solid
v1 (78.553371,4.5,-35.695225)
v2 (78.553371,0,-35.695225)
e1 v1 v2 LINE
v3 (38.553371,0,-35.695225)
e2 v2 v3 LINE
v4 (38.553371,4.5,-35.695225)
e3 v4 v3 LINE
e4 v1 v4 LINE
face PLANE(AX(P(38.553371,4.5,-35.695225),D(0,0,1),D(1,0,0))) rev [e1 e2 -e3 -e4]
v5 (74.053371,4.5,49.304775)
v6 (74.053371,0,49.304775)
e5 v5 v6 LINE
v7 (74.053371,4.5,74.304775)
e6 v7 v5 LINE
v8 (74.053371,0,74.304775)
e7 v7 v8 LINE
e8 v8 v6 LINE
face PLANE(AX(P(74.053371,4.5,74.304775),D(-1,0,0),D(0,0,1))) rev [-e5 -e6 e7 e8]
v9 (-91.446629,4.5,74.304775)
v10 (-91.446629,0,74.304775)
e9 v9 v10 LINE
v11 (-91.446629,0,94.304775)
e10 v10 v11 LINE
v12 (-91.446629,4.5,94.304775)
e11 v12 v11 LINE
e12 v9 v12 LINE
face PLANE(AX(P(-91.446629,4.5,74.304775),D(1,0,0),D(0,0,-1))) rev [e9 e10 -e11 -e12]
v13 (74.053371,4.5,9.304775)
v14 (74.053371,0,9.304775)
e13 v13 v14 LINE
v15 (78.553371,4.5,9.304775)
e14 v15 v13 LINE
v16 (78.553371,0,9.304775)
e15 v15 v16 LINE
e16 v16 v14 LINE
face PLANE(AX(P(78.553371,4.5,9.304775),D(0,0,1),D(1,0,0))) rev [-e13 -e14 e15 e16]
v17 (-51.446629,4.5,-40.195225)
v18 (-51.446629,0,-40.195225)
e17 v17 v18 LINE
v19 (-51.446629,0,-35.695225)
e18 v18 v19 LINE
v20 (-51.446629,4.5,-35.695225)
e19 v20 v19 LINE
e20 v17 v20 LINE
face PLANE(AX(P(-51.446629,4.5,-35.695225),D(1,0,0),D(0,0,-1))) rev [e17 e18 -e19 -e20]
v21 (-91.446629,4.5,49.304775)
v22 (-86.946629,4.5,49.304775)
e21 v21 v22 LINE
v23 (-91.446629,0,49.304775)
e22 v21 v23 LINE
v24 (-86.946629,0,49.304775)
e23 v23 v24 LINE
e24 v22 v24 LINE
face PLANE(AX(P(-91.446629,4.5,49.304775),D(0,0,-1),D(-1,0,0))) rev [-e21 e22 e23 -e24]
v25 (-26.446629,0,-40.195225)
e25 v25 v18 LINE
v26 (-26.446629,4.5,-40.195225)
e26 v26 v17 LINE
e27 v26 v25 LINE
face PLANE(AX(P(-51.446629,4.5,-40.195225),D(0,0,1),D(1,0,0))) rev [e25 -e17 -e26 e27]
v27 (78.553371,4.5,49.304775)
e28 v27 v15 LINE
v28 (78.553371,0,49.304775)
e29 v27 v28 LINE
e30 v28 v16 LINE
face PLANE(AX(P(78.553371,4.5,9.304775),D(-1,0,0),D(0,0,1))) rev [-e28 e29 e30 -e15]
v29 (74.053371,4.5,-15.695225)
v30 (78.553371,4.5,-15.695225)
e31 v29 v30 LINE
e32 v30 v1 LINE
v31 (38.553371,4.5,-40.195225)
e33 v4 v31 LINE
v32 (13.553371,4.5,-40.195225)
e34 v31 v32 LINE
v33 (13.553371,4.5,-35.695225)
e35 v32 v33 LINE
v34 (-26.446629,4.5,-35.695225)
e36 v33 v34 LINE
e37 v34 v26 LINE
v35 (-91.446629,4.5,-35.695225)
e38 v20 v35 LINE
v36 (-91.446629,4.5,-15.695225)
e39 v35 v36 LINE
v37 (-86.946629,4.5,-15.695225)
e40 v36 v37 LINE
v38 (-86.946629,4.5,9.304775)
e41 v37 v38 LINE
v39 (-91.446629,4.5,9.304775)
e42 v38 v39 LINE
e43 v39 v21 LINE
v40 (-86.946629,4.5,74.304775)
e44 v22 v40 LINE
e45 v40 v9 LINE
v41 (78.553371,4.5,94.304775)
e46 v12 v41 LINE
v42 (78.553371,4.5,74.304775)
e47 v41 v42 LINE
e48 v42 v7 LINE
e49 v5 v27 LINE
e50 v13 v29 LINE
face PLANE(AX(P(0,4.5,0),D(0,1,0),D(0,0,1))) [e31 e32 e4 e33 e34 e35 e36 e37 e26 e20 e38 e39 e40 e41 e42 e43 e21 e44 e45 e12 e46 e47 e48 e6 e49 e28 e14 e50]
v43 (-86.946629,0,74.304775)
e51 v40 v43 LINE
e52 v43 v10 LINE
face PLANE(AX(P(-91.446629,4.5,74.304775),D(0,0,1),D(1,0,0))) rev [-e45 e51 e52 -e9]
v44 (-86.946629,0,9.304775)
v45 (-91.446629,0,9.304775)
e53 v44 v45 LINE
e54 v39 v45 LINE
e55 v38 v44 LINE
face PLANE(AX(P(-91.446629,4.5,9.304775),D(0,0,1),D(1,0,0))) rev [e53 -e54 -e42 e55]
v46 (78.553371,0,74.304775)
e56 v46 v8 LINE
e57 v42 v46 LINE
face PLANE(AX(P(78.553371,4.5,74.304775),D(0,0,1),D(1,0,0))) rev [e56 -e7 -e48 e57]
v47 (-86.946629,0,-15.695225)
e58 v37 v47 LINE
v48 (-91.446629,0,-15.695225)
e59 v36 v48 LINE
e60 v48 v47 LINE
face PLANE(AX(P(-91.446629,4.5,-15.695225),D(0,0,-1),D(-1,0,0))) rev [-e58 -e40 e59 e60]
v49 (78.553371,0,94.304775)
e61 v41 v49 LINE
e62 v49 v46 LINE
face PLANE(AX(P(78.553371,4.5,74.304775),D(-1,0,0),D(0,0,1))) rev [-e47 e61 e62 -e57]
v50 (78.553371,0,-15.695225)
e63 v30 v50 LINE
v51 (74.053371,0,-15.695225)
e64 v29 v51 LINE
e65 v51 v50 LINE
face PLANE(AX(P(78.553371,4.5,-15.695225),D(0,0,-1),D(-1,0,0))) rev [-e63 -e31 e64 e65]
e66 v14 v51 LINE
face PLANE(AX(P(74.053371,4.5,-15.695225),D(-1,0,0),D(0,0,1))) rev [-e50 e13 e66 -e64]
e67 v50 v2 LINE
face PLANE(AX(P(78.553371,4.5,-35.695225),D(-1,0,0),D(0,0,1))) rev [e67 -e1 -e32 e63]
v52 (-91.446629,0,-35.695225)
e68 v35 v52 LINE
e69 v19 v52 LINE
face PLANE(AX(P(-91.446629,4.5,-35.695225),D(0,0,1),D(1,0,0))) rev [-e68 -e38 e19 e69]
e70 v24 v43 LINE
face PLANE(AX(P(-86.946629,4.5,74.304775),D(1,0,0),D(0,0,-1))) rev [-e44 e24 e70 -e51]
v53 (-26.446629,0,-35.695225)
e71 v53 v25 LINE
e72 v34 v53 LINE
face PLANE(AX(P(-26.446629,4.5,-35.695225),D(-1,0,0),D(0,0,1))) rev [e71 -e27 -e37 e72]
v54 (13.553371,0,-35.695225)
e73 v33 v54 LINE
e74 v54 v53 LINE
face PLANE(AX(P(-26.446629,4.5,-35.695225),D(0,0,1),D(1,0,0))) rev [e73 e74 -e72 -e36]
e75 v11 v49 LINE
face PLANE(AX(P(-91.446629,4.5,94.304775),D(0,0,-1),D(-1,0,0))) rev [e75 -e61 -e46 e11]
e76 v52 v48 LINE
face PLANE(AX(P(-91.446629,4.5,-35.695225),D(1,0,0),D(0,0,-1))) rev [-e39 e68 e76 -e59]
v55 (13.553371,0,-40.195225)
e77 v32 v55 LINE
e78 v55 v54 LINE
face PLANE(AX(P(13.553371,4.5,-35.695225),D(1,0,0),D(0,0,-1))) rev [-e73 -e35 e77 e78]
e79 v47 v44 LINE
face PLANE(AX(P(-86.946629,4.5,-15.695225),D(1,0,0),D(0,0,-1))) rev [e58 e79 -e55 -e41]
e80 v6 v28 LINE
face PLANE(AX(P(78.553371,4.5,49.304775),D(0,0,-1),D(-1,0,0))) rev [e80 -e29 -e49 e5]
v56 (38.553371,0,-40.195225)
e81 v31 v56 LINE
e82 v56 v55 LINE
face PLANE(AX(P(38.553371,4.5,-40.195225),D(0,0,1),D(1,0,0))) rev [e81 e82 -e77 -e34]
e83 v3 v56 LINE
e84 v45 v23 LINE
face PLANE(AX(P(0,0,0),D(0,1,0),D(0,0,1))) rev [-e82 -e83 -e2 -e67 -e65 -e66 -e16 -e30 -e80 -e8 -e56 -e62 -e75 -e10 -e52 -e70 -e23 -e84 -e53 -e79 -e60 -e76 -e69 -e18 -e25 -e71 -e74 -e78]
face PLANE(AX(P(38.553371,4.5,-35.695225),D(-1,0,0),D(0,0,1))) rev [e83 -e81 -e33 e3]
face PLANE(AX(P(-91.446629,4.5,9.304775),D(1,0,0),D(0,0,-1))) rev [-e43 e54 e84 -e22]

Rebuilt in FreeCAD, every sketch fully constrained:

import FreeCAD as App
import Part
import Sketcher

doc = App.newDocument("Part")
body = doc.addObject("PartDesign::Body", "Body")

# Sketch on XZ plane
sketch1 = body.newObject("Sketcher::SketchObject", "Sketch")
sketch1.AttachmentSupport = (doc.getObject("XZ_Plane"), [""])
sketch1.MapMode = "FlatFace"
sketch1.addGeometry(Part.LineSegment(App.Vector(-51.4, -35.7, 0), App.Vector(-91.4, -35.7, 0)), False)
sketch1.addGeometry(Part.LineSegment(App.Vector(-91.4, -35.7, 0), App.Vector(-91.4, -15.7, 0)), False)
sketch1.addGeometry(Part.LineSegment(App.Vector(-91.4, -15.7, 0), App.Vector(-86.9, -15.7, 0)), False)
sketch1.addGeometry(Part.LineSegment(App.Vector(-86.9, -15.7, 0), App.Vector(-86.9, 9.3, 0)), False)
sketch1.addGeometry(Part.LineSegment(App.Vector(-86.9, 9.3, 0), App.Vector(-91.4, 9.3, 0)), False)
sketch1.addGeometry(Part.LineSegment(App.Vector(-91.4, 9.3, 0), App.Vector(-91.4, 49.3, 0)), False)
sketch1.addGeometry(Part.LineSegment(App.Vector(-91.4, 49.3, 0), App.Vector(-86.9, 49.3, 0)), False)
sketch1.addGeometry(Part.LineSegment(App.Vector(-86.9, 49.3, 0), App.Vector(-86.9, 74.3, 0)), False)
sketch1.addGeometry(Part.LineSegment(App.Vector(-86.9, 74.3, 0), App.Vector(-91.4, 74.3, 0)), False)
sketch1.addGeometry(Part.LineSegment(App.Vector(-91.4, 74.3, 0), App.Vector(-91.4, 94.3, 0)), False)
sketch1.addGeometry(Part.LineSegment(App.Vector(-91.4, 94.3, 0), App.Vector(78.6, 94.3, 0)), False)
sketch1.addGeometry(Part.LineSegment(App.Vector(78.6, 94.3, 0), App.Vector(78.6, 74.3, 0)), False)
sketch1.addGeometry(Part.LineSegment(App.Vector(78.6, 74.3, 0), App.Vector(74.1, 74.3, 0)), False)
sketch1.addGeometry(Part.LineSegment(App.Vector(74.1, 74.3, 0), App.Vector(74.1, 49.3, 0)), False)
sketch1.addGeometry(Part.LineSegment(App.Vector(74.1, 49.3, 0), App.Vector(78.6, 49.3, 0)), False)
sketch1.addGeometry(Part.LineSegment(App.Vector(78.6, 49.3, 0), App.Vector(78.6, 9.3, 0)), False)
sketch1.addGeometry(Part.LineSegment(App.Vector(78.6, 9.3, 0), App.Vector(74.1, 9.3, 0)), False)
sketch1.addGeometry(Part.LineSegment(App.Vector(74.1, 9.3, 0), App.Vector(74.1, -15.7, 0)), False)
sketch1.addGeometry(Part.LineSegment(App.Vector(74.1, -15.7, 0), App.Vector(78.6, -15.7, 0)), False)
sketch1.addGeometry(Part.LineSegment(App.Vector(78.6, -15.7, 0), App.Vector(78.6, -35.7, 0)), False)
sketch1.addGeometry(Part.LineSegment(App.Vector(78.6, -35.7, 0), App.Vector(38.6, -35.7, 0)), False)
sketch1.addGeometry(Part.LineSegment(App.Vector(38.6, -35.7, 0), App.Vector(38.6, -40.2, 0)), False)
sketch1.addGeometry(Part.LineSegment(App.Vector(38.6, -40.2, 0), App.Vector(13.6, -40.2, 0)), False)
sketch1.addGeometry(Part.LineSegment(App.Vector(13.6, -40.2, 0), App.Vector(13.6, -35.7, 0)), False)
sketch1.addGeometry(Part.LineSegment(App.Vector(13.6, -35.7, 0), App.Vector(-26.4, -35.7, 0)), False)
sketch1.addGeometry(Part.LineSegment(App.Vector(-26.4, -35.7, 0), App.Vector(-26.4, -40.2, 0)), False)
sketch1.addGeometry(Part.LineSegment(App.Vector(-26.4, -40.2, 0), App.Vector(-51.4, -40.2, 0)), False)
sketch1.addGeometry(Part.LineSegment(App.Vector(-51.4, -40.2, 0), App.Vector(-51.4, -35.7, 0)), False)
sketch1.addConstraint(Sketcher.Constraint("Coincident", 0, 2, 1, 1))
sketch1.addConstraint(Sketcher.Constraint("Coincident", 1, 2, 2, 1))
sketch1.addConstraint(Sketcher.Constraint("Coincident", 2, 2, 3, 1))
sketch1.addConstraint(Sketcher.Constraint("Coincident", 3, 2, 4, 1))
sketch1.addConstraint(Sketcher.Constraint("Coincident", 4, 2, 5, 1))
sketch1.addConstraint(Sketcher.Constraint("Coincident", 5, 2, 6, 1))
sketch1.addConstraint(Sketcher.Constraint("Coincident", 6, 2, 7, 1))
sketch1.addConstraint(Sketcher.Constraint("Coincident", 7, 2, 8, 1))
sketch1.addConstraint(Sketcher.Constraint("Coincident", 8, 2, 9, 1))
sketch1.addConstraint(Sketcher.Constraint("Coincident", 9, 2, 10, 1))
sketch1.addConstraint(Sketcher.Constraint("Coincident", 10, 2, 11, 1))
sketch1.addConstraint(Sketcher.Constraint("Coincident", 11, 2, 12, 1))
sketch1.addConstraint(Sketcher.Constraint("Coincident", 12, 2, 13, 1))
sketch1.addConstraint(Sketcher.Constraint("Coincident", 13, 2, 14, 1))
sketch1.addConstraint(Sketcher.Constraint("Coincident", 14, 2, 15, 1))
sketch1.addConstraint(Sketcher.Constraint("Coincident", 15, 2, 16, 1))
sketch1.addConstraint(Sketcher.Constraint("Coincident", 16, 2, 17, 1))
sketch1.addConstraint(Sketcher.Constraint("Coincident", 17, 2, 18, 1))
sketch1.addConstraint(Sketcher.Constraint("Coincident", 18, 2, 19, 1))
sketch1.addConstraint(Sketcher.Constraint("Coincident", 19, 2, 20, 1))
sketch1.addConstraint(Sketcher.Constraint("Coincident", 20, 2, 21, 1))
sketch1.addConstraint(Sketcher.Constraint("Coincident", 21, 2, 22, 1))
sketch1.addConstraint(Sketcher.Constraint("Coincident", 22, 2, 23, 1))
sketch1.addConstraint(Sketcher.Constraint("Coincident", 23, 2, 24, 1))
sketch1.addConstraint(Sketcher.Constraint("Coincident", 24, 2, 25, 1))
sketch1.addConstraint(Sketcher.Constraint("Coincident", 25, 2, 26, 1))
sketch1.addConstraint(Sketcher.Constraint("Coincident", 26, 2, 27, 1))
sketch1.addConstraint(Sketcher.Constraint("Coincident", 27, 2, 0, 1))
sketch1.addConstraint(Sketcher.Constraint("Horizontal", 0))
sketch1.addConstraint(Sketcher.Constraint("Vertical", 1))
sketch1.addConstraint(Sketcher.Constraint("Horizontal", 2))
sketch1.addConstraint(Sketcher.Constraint("Vertical", 3))
sketch1.addConstraint(Sketcher.Constraint("Horizontal", 4))
sketch1.addConstraint(Sketcher.Constraint("Vertical", 5))
sketch1.addConstraint(Sketcher.Constraint("Horizontal", 6))
sketch1.addConstraint(Sketcher.Constraint("Vertical", 7))
sketch1.addConstraint(Sketcher.Constraint("Horizontal", 8))
sketch1.addConstraint(Sketcher.Constraint("Vertical", 9))
sketch1.addConstraint(Sketcher.Constraint("Horizontal", 10))
sketch1.addConstraint(Sketcher.Constraint("Vertical", 11))
sketch1.addConstraint(Sketcher.Constraint("Horizontal", 12))
sketch1.addConstraint(Sketcher.Constraint("Vertical", 13))
sketch1.addConstraint(Sketcher.Constraint("Horizontal", 14))
sketch1.addConstraint(Sketcher.Constraint("Vertical", 15))
sketch1.addConstraint(Sketcher.Constraint("Horizontal", 16))
sketch1.addConstraint(Sketcher.Constraint("Vertical", 17))
sketch1.addConstraint(Sketcher.Constraint("Horizontal", 18))
sketch1.addConstraint(Sketcher.Constraint("Vertical", 19))
sketch1.addConstraint(Sketcher.Constraint("Horizontal", 20))
sketch1.addConstraint(Sketcher.Constraint("Vertical", 21))
sketch1.addConstraint(Sketcher.Constraint("Horizontal", 22))
sketch1.addConstraint(Sketcher.Constraint("Vertical", 23))
sketch1.addConstraint(Sketcher.Constraint("Horizontal", 24))
sketch1.addConstraint(Sketcher.Constraint("Vertical", 25))
sketch1.addConstraint(Sketcher.Constraint("Horizontal", 26))
sketch1.addConstraint(Sketcher.Constraint("Vertical", 27))
sketch1.addConstraint(Sketcher.Constraint("Horizontal", 8, 2, 11, 2))
sketch1.addConstraint(Sketcher.Constraint("Horizontal", 6, 2, 13, 2))
sketch1.addConstraint(Sketcher.Constraint("Horizontal", 4, 2, 15, 2))
sketch1.addConstraint(Sketcher.Constraint("Horizontal", 2, 2, 17, 2))
sketch1.addConstraint(Sketcher.Constraint("Horizontal", 0, 2, 19, 2))
sketch1.addConstraint(Sketcher.Constraint("Horizontal", 20, 2, 23, 2))
sketch1.addConstraint(Sketcher.Constraint("Horizontal", 22, 2, 25, 2))
sketch1.addConstraint(Sketcher.Constraint("Vertical", 1, 2, 4, 2))
sketch1.addConstraint(Sketcher.Constraint("Vertical", 3, 2, 6, 2))
sketch1.addConstraint(Sketcher.Constraint("Vertical", 5, 2, 8, 2))
sketch1.addConstraint(Sketcher.Constraint("Vertical", 11, 2, 14, 2))
sketch1.addConstraint(Sketcher.Constraint("Vertical", 13, 2, 16, 2))
sketch1.addConstraint(Sketcher.Constraint("Vertical", 15, 2, 18, 2))
sketch1.addConstraint(Sketcher.Constraint("Equal", 8, 12))
sketch1.addConstraint(Sketcher.Constraint("Equal", 0, 20))
sketch1.addConstraint(Sketcher.Constraint("Equal", 20, 24))
sketch1.addConstraint(Sketcher.Constraint("Equal", 22, 26))
sketch1.addConstraint(Sketcher.Constraint("Equal", 26, 3))
sketch1.addConstraint(Sketcher.Constraint("Equal", 24, 5))
sketch1.addConstraint(Sketcher.Constraint("Equal", 3, 7))
sketch1.addConstraint(Sketcher.Constraint("Equal", 1, 9))
sketch1.addConstraint(Sketcher.Constraint("Equal", 18, 21))
sketch1.addConstraint(Sketcher.Constraint("DistanceX", 0, 2, 0, 1, 40.0))
sketch1.addConstraint(Sketcher.Constraint("DistanceX", 10, 1, 10, 2, 170.0))
sketch1.addConstraint(Sketcher.Constraint("DistanceY", 1, 1, 1, 2, 20.0))
sketch1.addConstraint(Sketcher.Constraint("DistanceX", 2, 1, 2, 2, 4.5))
sketch1.addConstraint(Sketcher.Constraint("DistanceX", 0, 2, -1, 1, 91.446629))
sketch1.addConstraint(Sketcher.Constraint("DistanceY", 0, 2, -1, 1, 35.695225))
pad1 = body.newObject("PartDesign::Pad", "Pad")
pad1.Profile = sketch1
pad1.Length = 4.5
pad1.Reversed = True

doc.recompute()
